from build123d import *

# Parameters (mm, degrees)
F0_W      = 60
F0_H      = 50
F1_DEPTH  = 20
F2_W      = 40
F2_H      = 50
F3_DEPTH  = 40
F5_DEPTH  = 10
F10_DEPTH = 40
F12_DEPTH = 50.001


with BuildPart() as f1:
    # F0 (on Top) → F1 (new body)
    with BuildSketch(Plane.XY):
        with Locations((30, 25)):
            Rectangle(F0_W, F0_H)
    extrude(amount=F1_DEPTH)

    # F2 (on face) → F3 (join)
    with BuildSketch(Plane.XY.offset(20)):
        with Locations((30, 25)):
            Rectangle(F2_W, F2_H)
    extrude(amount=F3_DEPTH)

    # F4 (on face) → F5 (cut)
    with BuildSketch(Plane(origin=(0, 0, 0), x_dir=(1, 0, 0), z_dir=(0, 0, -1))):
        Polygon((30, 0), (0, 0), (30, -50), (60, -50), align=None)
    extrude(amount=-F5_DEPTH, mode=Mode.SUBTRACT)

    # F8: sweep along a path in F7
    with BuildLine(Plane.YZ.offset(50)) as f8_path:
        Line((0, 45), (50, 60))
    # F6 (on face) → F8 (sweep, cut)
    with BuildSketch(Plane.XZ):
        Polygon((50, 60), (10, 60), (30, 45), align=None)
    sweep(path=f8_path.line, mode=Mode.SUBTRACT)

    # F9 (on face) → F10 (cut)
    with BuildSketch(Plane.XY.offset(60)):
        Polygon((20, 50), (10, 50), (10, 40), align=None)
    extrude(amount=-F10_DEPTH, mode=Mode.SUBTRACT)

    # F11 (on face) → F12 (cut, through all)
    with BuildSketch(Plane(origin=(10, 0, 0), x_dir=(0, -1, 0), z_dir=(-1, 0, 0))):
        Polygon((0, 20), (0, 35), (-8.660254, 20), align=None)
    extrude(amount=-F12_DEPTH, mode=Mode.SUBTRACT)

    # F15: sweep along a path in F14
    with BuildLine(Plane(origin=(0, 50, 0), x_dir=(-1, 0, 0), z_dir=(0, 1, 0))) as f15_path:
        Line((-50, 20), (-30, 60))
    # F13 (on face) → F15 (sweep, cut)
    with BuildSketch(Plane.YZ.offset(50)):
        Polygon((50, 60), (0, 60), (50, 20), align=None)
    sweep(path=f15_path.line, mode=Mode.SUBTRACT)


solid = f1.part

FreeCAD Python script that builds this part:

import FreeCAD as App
import Part
import Sketcher

V = App.Vector
Q = App.Units.Quantity

doc = App.newDocument("Part")
body = doc.addObject("PartDesign::Body", "Body")

sketch1 = body.newObject("Sketcher::SketchObject", "Sketch")
sketch1.AttachmentSupport = (doc.getObject("XY_Plane"), [""])
sketch1.MapMode = "FlatFace"
sketch1.addGeometry([
    Part.LineSegment(V(0, 50, 0), V(0, 0, 0)),
    Part.LineSegment(V(0, 0, 0), V(60, 0, 0)),
    Part.LineSegment(V(60, 0, 0), V(60, 50, 0)),
    Part.LineSegment(V(60, 50, 0), V(0, 50, 0)),
], False)
sketch1.addConstraint([
    Sketcher.Constraint("Coincident", 0, 2, 1, 1),
    Sketcher.Constraint("Coincident", 1, 2, 2, 1),
    Sketcher.Constraint("Coincident", 2, 2, 3, 1),
    Sketcher.Constraint("Coincident", 3, 2, 0, 1),
    Sketcher.Constraint("Vertical", 0),
    Sketcher.Constraint("Horizontal", 1),
    Sketcher.Constraint("Vertical", 2),
    Sketcher.Constraint("Horizontal", 3),
    Sketcher.Constraint("Coincident", 0, 2, -1, 1),
    Sketcher.Constraint("DistanceX", 1, 1, 1, 2, Q("60 mm")),
    Sketcher.Constraint("DistanceY", 0, 2, 0, 1, Q("50 mm")),
])
pad1 = body.newObject("PartDesign::Pad", "Pad")
pad1.Profile = sketch1
pad1.Length = 20

sketch2 = body.newObject("Sketcher::SketchObject", "Sketch001")
sketch2.AttachmentSupport = (doc.getObject("XY_Plane"), [""])
sketch2.MapMode = "FlatFace"
sketch2.AttachmentOffset = App.Placement(V(0, 0, 20), App.Rotation())
sketch2.addGeometry([
    Part.LineSegment(V(10, 50, 0), V(10, 0, 0)),
    Part.LineSegment(V(10, 0, 0), V(50, 0, 0)),
    Part.LineSegment(V(50, 0, 0), V(50, 50, 0)),
    Part.LineSegment(V(50, 50, 0), V(10, 50, 0)),
], False)
sketch2.addConstraint([
    Sketcher.Constraint("Coincident", 0, 2, 1, 1),
    Sketcher.Constraint("Coincident", 1, 2, 2, 1),
    Sketcher.Constraint("Coincident", 2, 2, 3, 1),
    Sketcher.Constraint("Coincident", 3, 2, 0, 1),
    Sketcher.Constraint("Vertical", 0),
    Sketcher.Constraint("Horizontal", 1),
    Sketcher.Constraint("Vertical", 2),
    Sketcher.Constraint("Horizontal", 3),
    Sketcher.Constraint("PointOnObject", 0, 2, -1),
    Sketcher.Constraint("DistanceX", 1, 1, 1, 2, Q("40 mm")),
    Sketcher.Constraint("DistanceY", 0, 2, 0, 1, Q("50 mm")),
    Sketcher.Constraint("DistanceX", -1, 1, 0, 2, Q("10 mm")),
])
pad2 = body.newObject("PartDesign::Pad", "Pad001")
pad2.Profile = sketch2
pad2.Length = 40

sketch3 = body.newObject("Sketcher::SketchObject", "Sketch002")
sketch3.AttachmentSupport = (doc.getObject("XY_Plane"), [""])
sketch3.MapMode = "FlatFace"
sketch3.addGeometry([
    Part.LineSegment(V(30, 0, 0), V(0, 0, 0)),
    Part.LineSegment(V(0, 0, 0), V(30, 50, 0)),
    Part.LineSegment(V(30, 50, 0), V(60, 50, 0)),
    Part.LineSegment(V(60, 50, 0), V(30, 0, 0)),
], False)
sketch3.addConstraint([
    Sketcher.Constraint("Coincident", 0, 2, 1, 1),
    Sketcher.Constraint("Coincident", 1, 2, 2, 1),
    Sketcher.Constraint("Coincident", 2, 2, 3, 1),
    Sketcher.Constraint("Coincident", 3, 2, 0, 1),
    Sketcher.Constraint("Horizontal", 0),
    Sketcher.Constraint("Horizontal", 2),
    Sketcher.Constraint("Coincident", 0, 2, -1, 1),
    Sketcher.Constraint("Parallel", 1, 3),
    Sketcher.Constraint("Vertical", 1, 2, 3, 2),
    Sketcher.Constraint("DistanceX", 0, 2, 0, 1, Q("30 mm")),
    Sketcher.Constraint("DistanceY", -1, 1, 1, 2, Q("50 mm")),
])
pocket1 = body.newObject("PartDesign::Pocket", "Pocket")
pocket1.Profile = sketch3
pocket1.Length = 10
pocket1.Reversed = True

sketch4 = body.newObject("Sketcher::SketchObject", "Sketch003")
sketch4.AttachmentSupport = (doc.getObject("XZ_Plane"), [""])
sketch4.MapMode = "FlatFace"
sketch4.addGeometry([
    Part.LineSegment(V(50, 60, 0), V(10, 60, 0)),
    Part.LineSegment(V(10, 60, 0), V(30, 45, 0)),
    Part.LineSegment(V(30, 45, 0), V(50, 60, 0)),
], False)
sketch4.addConstraint([
    Sketcher.Constraint("Coincident", 0, 2, 1, 1),
    Sketcher.Constraint("Coincident", 1, 2, 2, 1),
    Sketcher.Constraint("Coincident", 2, 2, 0, 1),
    Sketcher.Constraint("Horizontal", 0),
    Sketcher.Constraint("Equal", 1, 2),
    Sketcher.Constraint("DistanceX", 0, 2, 0, 1, Q("40 mm")),
    Sketcher.Constraint("Distance", 1, Q("25 mm")),
    Sketcher.Constraint("DistanceX", -1, 1, 0, 2, Q("10 mm")),
    Sketcher.Constraint("DistanceY", -1, 1, 0, 2, Q("60 mm")),
])

sketch5 = body.newObject("Sketcher::SketchObject", "Sketch004")
sketch5.Placement = App.Placement(V(0, -12.385321, 41.284404), App.Rotation(V(0, 0.957826285, 0.287347886), V(1, 0, 0), V(0, 0.287347886, -0.957826285), "ZXY"))
sketch5.addGeometry(Part.LineSegment(V(13, 50, 0), V(65, 50, 0)), False)
sketch5.addConstraint([
    Sketcher.Constraint("Horizontal", 0),
    Sketcher.Constraint("DistanceY", -1, 1, 0, 1, Q("50 mm")),
    Sketcher.Constraint("DistanceX", 0, 1, 0, 2, Q("52.201533 mm")),
    Sketcher.Constraint("DistanceX", -1, 1, 0, 1, Q("12.930655 mm")),
])
doc.recompute()

subtractivepipe = body.newObject("PartDesign::SubtractivePipe", "SubtractivePipe")
subtractivepipe.Profile = sketch4
subtractivepipe.Spine = (sketch5, ["Edge1"])

sketch6 = body.newObject("Sketcher::SketchObject", "Sketch005")
sketch6.AttachmentSupport = (doc.getObject("XY_Plane"), [""])
sketch6.MapMode = "FlatFace"
sketch6.AttachmentOffset = App.Placement(V(0, 0, 60), App.Rotation())
sketch6.addGeometry([
    Part.LineSegment(V(20, 50, 0), V(10, 50, 0)),
    Part.LineSegment(V(10, 50, 0), V(10, 40, 0)),
    Part.LineSegment(V(10, 40, 0), V(20, 50, 0)),
], False)
sketch6.addConstraint([
    Sketcher.Constraint("Coincident", 0, 2, 1, 1),
    Sketcher.Constraint("Coincident", 1, 2, 2, 1),
    Sketcher.Constraint("Coincident", 2, 2, 0, 1),
    Sketcher.Constraint("Horizontal", 0),
    Sketcher.Constraint("Vertical", 1),
    Sketcher.Constraint("Equal", 0, 1),
    Sketcher.Constraint("DistanceX", 0, 2, 0, 1, Q("10 mm")),
    Sketcher.Constraint("DistanceX", -1, 1, 0, 2, Q("10 mm")),
    Sketcher.Constraint("DistanceY", -1, 1, 0, 2, Q("50 mm")),
])
pocket2 = body.newObject("PartDesign::Pocket", "Pocket001")
pocket2.Profile = sketch6
pocket2.Length = 40

sketch7 = body.newObject("Sketcher::SketchObject", "Sketch006")
sketch7.AttachmentSupport = (doc.getObject("YZ_Plane"), [""])
sketch7.MapMode = "FlatFace"
sketch7.AttachmentOffset = App.Placement(V(0, 0, 10), App.Rotation())
sketch7.addGeometry([
    Part.LineSegment(V(0, 20, 0), V(0, 35, 0)),
    Part.LineSegment(V(0, 35, 0), V(9, 20, 0)),
    Part.LineSegment(V(9, 20, 0), V(0, 20, 0)),
], False)
sketch7.addConstraint([
    Sketcher.Constraint("Coincident", 0, 2, 1, 1),
    Sketcher.Constraint("Coincident", 1, 2, 2, 1),
    Sketcher.Constraint("Coincident", 2, 2, 0, 1),
    Sketcher.Constraint("Vertical", 0),
    Sketcher.Constraint("Horizontal", 2),
    Sketcher.Constraint("PointOnObject", 0, 2, -2),
    Sketcher.Constraint("DistanceY", 0, 1, 0, 2, Q("15 mm")),
    Sketcher.Constraint("Angle", 1, Q("-60 deg")),
    Sketcher.Constraint("DistanceY", -1, 1, 0, 2, Q("35 mm")),
])
pocket3 = body.newObject("PartDesign::Pocket", "Pocket002")
pocket3.Profile = sketch7
pocket3.Type = "ThroughAll"
pocket3.Reversed = True

sketch8 = body.newObject("Sketcher::SketchObject", "Sketch007")
sketch8.AttachmentSupport = (doc.getObject("YZ_Plane"), [""])
sketch8.MapMode = "FlatFace"
sketch8.AttachmentOffset = App.Placement(V(0, 0, 50), App.Rotation())
sketch8.addGeometry([
    Part.LineSegment(V(50, 60, 0), V(0, 60, 0)),
    Part.LineSegment(V(0, 60, 0), V(50, 20, 0)),
    Part.LineSegment(V(50, 20, 0), V(50, 60, 0)),
], False)
sketch8.addConstraint([
    Sketcher.Constraint("Coincident", 0, 2, 1, 1),
    Sketcher.Constraint("Coincident", 1, 2, 2, 1),
    Sketcher.Constraint("Coincident", 2, 2, 0, 1),
    Sketcher.Constraint("Horizontal", 0),
    Sketcher.Constraint("Vertical", 2),
    Sketcher.Constraint("PointOnObject", 0, 2, -2),
    Sketcher.Constraint("DistanceX", 0, 2, 0, 1, Q("50 mm")),
    Sketcher.Constraint("DistanceY", 2, 1, 2, 2, Q("40 mm")),
    Sketcher.Constraint("DistanceY", -1, 1, 0, 2, Q("60 mm")),
])

sketch9 = body.newObject("Sketcher::SketchObject", "Sketch008")
sketch9.Placement = App.Placement(V(48, 0, 24), App.Rotation(V(-0.447213595, 0, 0.894427191), V(0, 1, 0), V(-0.894427191, 0, -0.447213595), "ZXY"))
sketch9.addGeometry(Part.LineSegment(V(-4, 50, 0), V(40, 50, 0)), False)
sketch9.addConstraint([
    Sketcher.Constraint("Horizontal", 0),
    Sketcher.Constraint("DistanceY", -1, 1, 0, 1, Q("50 mm")),
    Sketcher.Constraint("DistanceX", 0, 1, 0, 2, Q("44.72136 mm")),
    Sketcher.Constraint("DistanceX", 0, 1, -1, 1, Q("4.472136 mm")),
])
doc.recompute()

subtractivepipe2 = body.newObject("PartDesign::SubtractivePipe", "SubtractivePipe001")
subtractivepipe2.Profile = sketch8
subtractivepipe2.Spine = (sketch9, ["Edge1"])

doc.recompute()
